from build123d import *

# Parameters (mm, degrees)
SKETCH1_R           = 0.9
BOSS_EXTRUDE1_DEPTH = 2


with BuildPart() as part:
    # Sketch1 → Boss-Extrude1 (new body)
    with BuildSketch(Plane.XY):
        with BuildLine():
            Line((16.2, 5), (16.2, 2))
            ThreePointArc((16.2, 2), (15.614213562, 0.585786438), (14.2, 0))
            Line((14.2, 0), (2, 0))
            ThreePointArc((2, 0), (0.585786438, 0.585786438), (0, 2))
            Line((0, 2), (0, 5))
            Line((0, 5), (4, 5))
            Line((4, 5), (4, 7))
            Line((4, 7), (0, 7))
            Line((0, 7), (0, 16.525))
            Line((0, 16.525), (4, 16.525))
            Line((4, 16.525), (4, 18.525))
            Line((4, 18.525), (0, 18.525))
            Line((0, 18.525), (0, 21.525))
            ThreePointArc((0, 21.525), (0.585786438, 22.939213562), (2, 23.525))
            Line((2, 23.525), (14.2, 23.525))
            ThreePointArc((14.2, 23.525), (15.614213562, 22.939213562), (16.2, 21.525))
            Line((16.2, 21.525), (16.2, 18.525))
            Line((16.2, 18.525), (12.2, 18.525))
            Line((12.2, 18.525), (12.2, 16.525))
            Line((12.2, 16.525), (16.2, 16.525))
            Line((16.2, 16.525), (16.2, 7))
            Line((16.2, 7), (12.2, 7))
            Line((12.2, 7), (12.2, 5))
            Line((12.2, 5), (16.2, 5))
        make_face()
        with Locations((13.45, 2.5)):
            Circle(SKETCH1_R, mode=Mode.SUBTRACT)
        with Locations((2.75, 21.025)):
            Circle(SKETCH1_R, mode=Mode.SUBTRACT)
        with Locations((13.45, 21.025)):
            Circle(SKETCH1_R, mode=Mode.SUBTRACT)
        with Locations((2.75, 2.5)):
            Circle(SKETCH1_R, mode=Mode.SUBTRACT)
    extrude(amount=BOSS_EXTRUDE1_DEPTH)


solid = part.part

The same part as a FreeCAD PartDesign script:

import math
import FreeCAD as App
import Part
import Sketcher
from FreeCAD import Vector
Q = App.Units.Quantity

doc = App.newDocument("Part")
params = doc.addObject("Spreadsheet::Sheet", "Params")
for row, (alias, value) in enumerate([
    ("sketch1_radius", "2 mm"),
    ("sketch1_diameter", "1.8 mm"),
    ("sketch1_width", "4 mm"),
    ("sketch1_height", "3 mm"),
    ("sketch1_height2", "2 mm"),
    ("pad1_length", "2 mm"),
], start=1):
    params.set(f"A{row}", alias)
    params.set(f"B{row}", "=" + value)
    params.setAlias(f"B{row}", alias)

body = doc.addObject("PartDesign::Body", "Body")

sketch1 = doc.addObject("Sketcher::SketchObject", "Sketch")
body.addObject(sketch1)
sketch1.AttachmentSupport = (doc.XY_Plane, [""])
sketch1.MapMode = "FlatFace"
sketch1.addGeometry([
    Part.LineSegment(Vector(16.2, 2, 0), Vector(16.2, 5, 0)),
    Part.LineSegment(Vector(16.2, 5, 0), Vector(12.2, 5, 0)),
    Part.LineSegment(Vector(12.2, 5, 0), Vector(12.2, 7, 0)),
    Part.LineSegment(Vector(12.2, 7, 0), Vector(16.2, 7, 0)),
    Part.LineSegment(Vector(16.2, 7, 0), Vector(16.2, 16.5, 0)),
    Part.LineSegment(Vector(16.2, 16.5, 0), Vector(12.2, 16.5, 0)),
    Part.LineSegment(Vector(12.2, 16.5, 0), Vector(12.2, 18.5, 0)),
    Part.LineSegment(Vector(12.2, 18.5, 0), Vector(16.2, 18.5, 0)),
    Part.LineSegment(Vector(16.2, 18.5, 0), Vector(16.2, 21.5, 0)),
    Part.ArcOfCircle(Part.Circle(Vector(14.2, 21.5, 0), Vector(0, 0, 1), 2), math.radians(0), math.radians(90)),
    Part.LineSegment(Vector(14.2, 23.5, 0), Vector(2, 23.5, 0)),
    Part.ArcOfCircle(Part.Circle(Vector(2, 21.5, 0), Vector(0, 0, 1), 2), math.radians(90), math.radians(180)),
    Part.LineSegment(Vector(0, 21.5, 0), Vector(0, 18.5, 0)),
    Part.LineSegment(Vector(0, 18.5, 0), Vector(4, 18.5, 0)),
    Part.LineSegment(Vector(4, 18.5, 0), Vector(4, 16.5, 0)),
    Part.LineSegment(Vector(4, 16.5, 0), Vector(0, 16.5, 0)),
    Part.LineSegment(Vector(0, 16.5, 0), Vector(0, 7, 0)),
    Part.LineSegment(Vector(0, 7, 0), Vector(4, 7, 0)),
    Part.LineSegment(Vector(4, 7, 0), Vector(4, 5, 0)),
    Part.LineSegment(Vector(4, 5, 0), Vector(0, 5, 0)),
    Part.LineSegment(Vector(0, 5, 0), Vector(0, 2, 0)),
    Part.ArcOfCircle(Part.Circle(Vector(2, 2, 0), Vector(0, 0, 1), 2), math.radians(-180), math.radians(-90)),
    Part.LineSegment(Vector(2, 0, 0), Vector(14.2, 0, 0)),
    Part.ArcOfCircle(Part.Circle(Vector(14.2, 2, 0), Vector(0, 0, 1), 2), math.radians(-90), math.radians(0)),
    Part.Circle(Vector(13.4, 2.5, 0), Vector(0, 0, 1), 0.9),
    Part.Circle(Vector(2.8, 2.5, 0), Vector(0, 0, 1), 0.9),
    Part.Circle(Vector(13.4, 21, 0), Vector(0, 0, 1), 0.9),
    Part.Circle(Vector(2.8, 21, 0), Vector(0, 0, 1), 0.9),
], False)
sketch1.addConstraint([
    Sketcher.Constraint("Coincident", 0, 2, 1, 1),
    Sketcher.Constraint("Coincident", 1, 2, 2, 1),
    Sketcher.Constraint("Coincident", 2, 2, 3, 1),
    Sketcher.Constraint("Coincident", 3, 2, 4, 1),
    Sketcher.Constraint("Coincident", 4, 2, 5, 1),
    Sketcher.Constraint("Coincident", 5, 2, 6, 1),
    Sketcher.Constraint("Coincident", 6, 2, 7, 1),
    Sketcher.Constraint("Coincident", 7, 2, 8, 1),
    Sketcher.Constraint("Tangent", 8, 2, 9, 1),
    Sketcher.Constraint("Tangent", 9, 2, 10, 1),
    Sketcher.Constraint("Tangent", 10, 2, 11, 1),
    Sketcher.Constraint("Tangent", 11, 2, 12, 1),
    Sketcher.Constraint("Coincident", 12, 2, 13, 1),
    Sketcher.Constraint("Coincident", 13, 2, 14, 1),
    Sketcher.Constraint("Coincident", 14, 2, 15, 1),
    Sketcher.Constraint("Coincident", 15, 2, 16, 1),
    Sketcher.Constraint("Coincident", 16, 2, 17, 1),
    Sketcher.Constraint("Coincident", 17, 2, 18, 1),
    Sketcher.Constraint("Coincident", 18, 2, 19, 1),
    Sketcher.Constraint("Coincident", 19, 2, 20, 1),
    Sketcher.Constraint("Tangent", 20, 2, 21, 1),
    Sketcher.Constraint("Tangent", 21, 2, 22, 1),
    Sketcher.Constraint("Tangent", 22, 2, 23, 1),
    Sketcher.Constraint("Tangent", 23, 2, 0, 1),
    Sketcher.Constraint("Vertical", 0),
    Sketcher.Constraint("Horizontal", 1),
    Sketcher.Constraint("Vertical", 2),
    Sketcher.Constraint("Horizontal", 3),
    Sketcher.Constraint("Vertical", 4),
    Sketcher.Constraint("Horizontal", 5),
    Sketcher.Constraint("Vertical", 6),
    Sketcher.Constraint("Horizontal", 7),
    Sketcher.Constraint("Vertical", 8),
    Sketcher.Constraint("Horizontal", 10),
    Sketcher.Constraint("Vertical", 12),
    Sketcher.Constraint("Horizontal", 13),
    Sketcher.Constraint("Vertical", 14),
    Sketcher.Constraint("Horizontal", 15),
    Sketcher.Constraint("Vertical", 16),
    Sketcher.Constraint("Horizontal", 17),
    Sketcher.Constraint("Vertical", 18),
    Sketcher.Constraint("Horizontal", 19),
    Sketcher.Constraint("Vertical", 20),
    Sketcher.Constraint("Horizontal", 22),
    Sketcher.Constraint("Equal", 9, 11),
    Sketcher.Constraint("Equal", 11, 21),
    Sketcher.Constraint("Equal", 21, 23),
    Sketcher.Constraint("Equal", 24, 25),
    Sketcher.Constraint("Equal", 25, 26),
    Sketcher.Constraint("Equal", 26, 27),
    Sketcher.Constraint("PointOnObject", 11, 2, -2),
    Sketcher.Constraint("PointOnObject", 15, 2, -2),
    Sketcher.Constraint("PointOnObject", 19, 2, -2),
    Sketcher.Constraint("PointOnObject", 21, 2, -1),
    Sketcher.Constraint("Horizontal", 24, 3, 25, 3),
    Sketcher.Constraint("Horizontal", 26, 3, 27, 3),
    Sketcher.Constraint("Horizontal", 7, 2, 12, 2),
    Sketcher.Constraint("Horizontal", 5, 2, 14, 2),
    Sketcher.Constraint("Horizontal", 3, 2, 16, 2),
    Sketcher.Constraint("Horizontal", 1, 2, 18, 2),
    Sketcher.Constraint("Vertical", 9, 3, 23, 3),
    Sketcher.Constraint("Vertical", 24, 3, 26, 3),
    Sketcher.Constraint("Vertical", 25, 3, 27, 3),
    Sketcher.Constraint("Vertical", 0, 2, 3, 2),
    Sketcher.Constraint("Vertical", 2, 2, 5, 2),
    Sketcher.Constraint("Vertical", 14, 2, 17, 2),
    Sketcher.Constraint("Equal", 7, 13),
    Sketcher.Constraint("Equal", 2, 6),
    Sketcher.Constraint("Equal", 0, 8),
    Sketcher.Constraint("Radius", 9, Q("2 mm")),
    Sketcher.Constraint("Diameter", 24, Q("1.8 mm")),
    Sketcher.Constraint("DistanceX", 1, 2, 1, 1, Q("4 mm")),
    Sketcher.Constraint("DistanceY", 0, 1, 0, 2, Q("3 mm")),
    Sketcher.Constraint("DistanceY", 2, 1, 2, 2, Q("2 mm")),
    Sketcher.Constraint("DistanceX", 10, 2, 10, 1, Q("12.2 mm")),
    Sketcher.Constraint("DistanceY", -1, 1, 24, 3, Q("2.5 mm")),
    Sketcher.Constraint("DistanceX", 25, 3, 24, 3, Q("10.7 mm")),
    Sketcher.Constraint("DistanceY", 26, 3, 9, 3, Q("0.5 mm")),
    Sketcher.Constraint("DistanceY", 4, 1, 4, 2, Q("9.525 mm")),
    Sketcher.Constraint("DistanceX", -1, 1, 24, 3, Q("13.45 mm")),
])
sketch1.setExpression("Constraints[69]", "Params.sketch1_radius")
sketch1.setExpression("Constraints[70]", "Params.sketch1_diameter")
sketch1.setExpression("Constraints[71]", "Params.sketch1_width")
sketch1.setExpression("Constraints[72]", "Params.sketch1_height")
sketch1.setExpression("Constraints[73]", "Params.sketch1_height2")
pad1 = doc.addObject("PartDesign::Pad", "Pad")
body.addObject(pad1)
pad1.Profile = sketch1
pad1.setExpression("Length", "Params.pad1_length")

doc.recompute()
